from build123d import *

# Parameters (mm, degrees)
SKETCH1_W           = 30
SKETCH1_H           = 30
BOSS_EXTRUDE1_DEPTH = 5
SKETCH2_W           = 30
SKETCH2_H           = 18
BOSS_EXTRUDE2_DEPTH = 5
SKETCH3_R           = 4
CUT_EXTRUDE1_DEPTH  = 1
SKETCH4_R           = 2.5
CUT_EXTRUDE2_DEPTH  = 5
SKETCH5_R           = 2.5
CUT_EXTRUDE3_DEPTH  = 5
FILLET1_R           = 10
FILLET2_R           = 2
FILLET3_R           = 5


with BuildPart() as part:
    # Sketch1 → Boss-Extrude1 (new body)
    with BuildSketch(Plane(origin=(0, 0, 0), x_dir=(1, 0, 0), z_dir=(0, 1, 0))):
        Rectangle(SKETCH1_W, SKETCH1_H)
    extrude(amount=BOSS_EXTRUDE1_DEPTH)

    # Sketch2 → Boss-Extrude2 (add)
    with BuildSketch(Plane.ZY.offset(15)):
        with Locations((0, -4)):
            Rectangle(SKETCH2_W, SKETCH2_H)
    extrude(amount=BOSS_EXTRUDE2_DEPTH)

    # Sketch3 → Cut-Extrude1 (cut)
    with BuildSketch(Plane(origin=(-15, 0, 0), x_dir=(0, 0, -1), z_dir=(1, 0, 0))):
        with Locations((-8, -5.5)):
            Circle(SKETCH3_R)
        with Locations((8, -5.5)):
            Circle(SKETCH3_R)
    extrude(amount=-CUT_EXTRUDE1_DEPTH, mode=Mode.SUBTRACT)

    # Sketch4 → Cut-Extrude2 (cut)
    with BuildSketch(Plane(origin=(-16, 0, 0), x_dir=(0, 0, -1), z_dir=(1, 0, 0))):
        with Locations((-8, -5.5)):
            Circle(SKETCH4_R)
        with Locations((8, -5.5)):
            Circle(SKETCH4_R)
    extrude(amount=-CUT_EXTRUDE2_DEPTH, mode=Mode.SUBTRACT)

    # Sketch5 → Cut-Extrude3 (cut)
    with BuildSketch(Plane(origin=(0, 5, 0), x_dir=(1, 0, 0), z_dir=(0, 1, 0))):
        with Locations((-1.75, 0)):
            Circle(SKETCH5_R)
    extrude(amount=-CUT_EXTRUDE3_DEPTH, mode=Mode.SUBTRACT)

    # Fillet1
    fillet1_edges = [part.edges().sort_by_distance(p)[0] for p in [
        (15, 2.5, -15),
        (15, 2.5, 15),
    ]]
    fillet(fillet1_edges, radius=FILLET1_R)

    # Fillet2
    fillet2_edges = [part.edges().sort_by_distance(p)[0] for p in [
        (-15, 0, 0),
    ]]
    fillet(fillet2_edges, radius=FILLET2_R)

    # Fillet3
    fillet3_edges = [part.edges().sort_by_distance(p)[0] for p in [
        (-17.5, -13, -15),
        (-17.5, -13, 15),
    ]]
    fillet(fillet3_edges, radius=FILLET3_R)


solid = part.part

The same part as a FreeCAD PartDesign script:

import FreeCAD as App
import Part
import Sketcher
from FreeCAD import Vector


def edges_at(feature, points):
    """Names of the edges that pass closest to the given points."""
    edges = feature.Shape.Edges
    near = lambda p: min(range(len(edges)), key=lambda i: edges[i].distToShape(Part.Vertex(*p))[0])
    return sorted({f"Edge{near(p) + 1}" for p in points})

doc = App.newDocument("Part")
body = doc.addObject("PartDesign::Body", "Body")

# Sketch on XZ plane
sketch1 = body.newObject("Sketcher::SketchObject", "Sketch")
sketch1.AttachmentSupport = (doc.getObject("XZ_Plane"), [""])
sketch1.MapMode = "FlatFace"
sketch1.addGeometry([
    Part.LineSegment(Vector(-15, -15, 0), Vector(-15, 15, 0)),
    Part.LineSegment(Vector(-15, 15, 0), Vector(15, 15, 0)),
    Part.LineSegment(Vector(15, 15, 0), Vector(15, -15, 0)),
    Part.LineSegment(Vector(15, -15, 0), Vector(-15, -15, 0)),
], False)
sketch1.addConstraint([
    Sketcher.Constraint("Coincident", 0, 2, 1, 1),
    Sketcher.Constraint("Coincident", 1, 2, 2, 1),
    Sketcher.Constraint("Coincident", 2, 2, 3, 1),
    Sketcher.Constraint("Coincident", 3, 2, 0, 1),
    Sketcher.Constraint("Vertical", 0),
    Sketcher.Constraint("Horizontal", 1),
    Sketcher.Constraint("Vertical", 2),
    Sketcher.Constraint("Horizontal", 3),
    Sketcher.Constraint("Symmetric", 0, 2, 2, 2, -1, 1),
    Sketcher.Constraint("Equal", 3, 0),
    Sketcher.Constraint("DistanceX", 1, 1, 1, 2, 30.0),
])
pad1 = body.newObject("PartDesign::Pad", "Pad")
pad1.Profile = sketch1
pad1.Length = 5
pad1.Reversed = True

# Sketch on YZ plane
sketch2 = body.newObject("Sketcher::SketchObject", "Sketch001")
sketch2.AttachmentSupport = (doc.getObject("YZ_Plane"), [""])
sketch2.MapMode = "FlatFace"
sketch2.AttachmentOffset = App.Placement(Vector(0, 0, -15), App.Rotation())
sketch2.addGeometry([
    Part.LineSegment(Vector(5, -15, 0), Vector(-13, -15, 0)),
    Part.LineSegment(Vector(-13, -15, 0), Vector(-13, 15, 0)),
    Part.LineSegment(Vector(-13, 15, 0), Vector(5, 15, 0)),
    Part.LineSegment(Vector(5, 15, 0), Vector(5, -15, 0)),
], False)
sketch2.addConstraint([
    Sketcher.Constraint("Coincident", 0, 2, 1, 1),
    Sketcher.Constraint("Coincident", 1, 2, 2, 1),
    Sketcher.Constraint("Coincident", 2, 2, 3, 1),
    Sketcher.Constraint("Coincident", 3, 2, 0, 1),
    Sketcher.Constraint("Horizontal", 0),
    Sketcher.Constraint("Vertical", 1),
    Sketcher.Constraint("Horizontal", 2),
    Sketcher.Constraint("Vertical", 3),
    Sketcher.Constraint("DistanceX", 0, 2, 0, 1, 18.0),
    Sketcher.Constraint("DistanceY", 1, 1, 1, 2, 30.0),
    Sketcher.Constraint("DistanceX", 0, 2, -1, 1, 13.0),
    Sketcher.Constraint("DistanceY", 0, 2, -1, 1, 15.0),
])
pad2 = body.newObject("PartDesign::Pad", "Pad001")
pad2.Profile = sketch2
pad2.Length = 5
pad2.Reversed = True

# Sketch on YZ plane
sketch3 = body.newObject("Sketcher::SketchObject", "Sketch002")
sketch3.AttachmentSupport = (doc.getObject("YZ_Plane"), [""])
sketch3.MapMode = "FlatFace"
sketch3.AttachmentOffset = App.Placement(Vector(0, 0, -15), App.Rotation())
sketch3.addGeometry([
    Part.Circle(Vector(-5.5, 8, 0), Vector(0, 0, 1), 4),
    Part.Circle(Vector(-5.5, -8, 0), Vector(0, 0, 1), 4),
], False)
sketch3.addConstraint([
    Sketcher.Constraint("Equal", 0, 1),
    Sketcher.Constraint("Symmetric", 0, 3, 1, 3, -1),
    Sketcher.Constraint("Diameter", 0, 8.0),
    Sketcher.Constraint("DistanceY", -1, 1, 0, 3, 8.0),
    Sketcher.Constraint("DistanceX", 0, 3, -1, 1, 5.5),
])
pocket1 = body.newObject("PartDesign::Pocket", "Pocket")
pocket1.Profile = sketch3
pocket1.Length = 1

# Sketch on YZ plane
sketch4 = body.newObject("Sketcher::SketchObject", "Sketch003")
sketch4.AttachmentSupport = (doc.getObject("YZ_Plane"), [""])
sketch4.MapMode = "FlatFace"
sketch4.AttachmentOffset = App.Placement(Vector(0, 0, -16), App.Rotation())
sketch4.addGeometry([
    Part.Circle(Vector(-5.5, 8, 0), Vector(0, 0, 1), 2.5),
    Part.Circle(Vector(-5.5, -8, 0), Vector(0, 0, 1), 2.5),
], False)
sketch4.addConstraint([
    Sketcher.Constraint("Equal", 0, 1),
    Sketcher.Constraint("Symmetric", 0, 3, 1, 3, -1),
    Sketcher.Constraint("Diameter", 0, 5.0),
    Sketcher.Constraint("DistanceY", -1, 1, 0, 3, 8.0),
    Sketcher.Constraint("DistanceX", 0, 3, -1, 1, 5.5),
])
pocket2 = body.newObject("PartDesign::Pocket", "Pocket001")
pocket2.Profile = sketch4
pocket2.Length = 5

# Sketch on XZ plane
sketch5 = body.newObject("Sketcher::SketchObject", "Sketch004")
sketch5.AttachmentSupport = (doc.getObject("XZ_Plane"), [""])
sketch5.MapMode = "FlatFace"
sketch5.AttachmentOffset = App.Placement(Vector(0, 0, -5), App.Rotation())
sketch5.addGeometry(Part.Circle(Vector(-1.8, 0, 0), Vector(0, 0, 1), 2.5), False)
sketch5.addConstraint([
    Sketcher.Constraint("PointOnObject", 0, 3, -1),
    Sketcher.Constraint("Diameter", 0, 5.0),
    Sketcher.Constraint("DistanceX", 0, 3, -1, 1, 1.75),
])
pocket3 = body.newObject("PartDesign::Pocket", "Pocket002")
pocket3.Profile = sketch5
pocket3.Length = 5
pocket3.Reversed = True
doc.recompute()

fillet = body.newObject("PartDesign::Fillet", "Fillet")
fillet.Base = (pocket3, edges_at(pocket3, [(15, 2.5, -15), (15, 2.5, 15)]))
fillet.Radius = 10
doc.recompute()

fillet2 = body.newObject("PartDesign::Fillet", "Fillet001")
fillet2.Base = (fillet, edges_at(fillet, [(-15, 0, 0)]))
fillet2.Radius = 2
doc.recompute()

fillet3 = body.newObject("PartDesign::Fillet", "Fillet002")
fillet3.Base = (fillet2, edges_at(fillet2, [(-17.5, -13, -15), (-17.5, -13, 15)]))
fillet3.Radius = 5

doc.recompute()
